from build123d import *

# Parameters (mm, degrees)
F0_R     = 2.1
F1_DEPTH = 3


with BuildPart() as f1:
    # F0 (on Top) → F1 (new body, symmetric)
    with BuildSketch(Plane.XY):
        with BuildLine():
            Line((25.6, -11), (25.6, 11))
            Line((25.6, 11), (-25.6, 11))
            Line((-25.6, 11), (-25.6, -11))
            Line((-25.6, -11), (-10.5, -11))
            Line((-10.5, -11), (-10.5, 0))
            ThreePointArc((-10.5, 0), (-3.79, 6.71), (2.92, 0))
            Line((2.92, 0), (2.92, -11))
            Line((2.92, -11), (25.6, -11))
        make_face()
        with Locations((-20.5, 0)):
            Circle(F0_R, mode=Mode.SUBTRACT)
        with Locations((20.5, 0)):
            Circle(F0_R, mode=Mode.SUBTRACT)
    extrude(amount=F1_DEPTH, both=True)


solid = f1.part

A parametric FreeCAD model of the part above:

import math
import FreeCAD as App
import Part
import Sketcher
Q = App.Units.Quantity

doc = App.newDocument("Part")
body = doc.addObject("PartDesign::Body", "Body")

# Sketch on XY plane
sketch1 = body.newObject("Sketcher::SketchObject", "Sketch")
sketch1.AttachmentSupport = (doc.getObject("XY_Plane"), [""])
sketch1.MapMode = "FlatFace"
sketch1.addGeometry(Part.LineSegment(App.Vector(25.6, -11, 0), App.Vector(25.6, 11, 0)), False)
sketch1.addGeometry(Part.LineSegment(App.Vector(25.6, 11, 0), App.Vector(-25.6, 11, 0)), False)
sketch1.addGeometry(Part.LineSegment(App.Vector(-25.6, 11, 0), App.Vector(-25.6, -11, 0)), False)
sketch1.addGeometry(Part.LineSegment(App.Vector(-25.6, -11, 0), App.Vector(-10.5, -11, 0)), False)
sketch1.addGeometry(Part.LineSegment(App.Vector(-10.5, -11, 0), App.Vector(-10.5, 0, 0)), False)
sketch1.addGeometry(Part.ArcOfCircle(Part.Circle(App.Vector(-3.8, 0, 0), App.Vector(0, 0, 1), 6.7), math.radians(0), math.radians(180)), False)
sketch1.addGeometry(Part.LineSegment(App.Vector(2.9, 0, 0), App.Vector(2.9, -11, 0)), False)
sketch1.addGeometry(Part.LineSegment(App.Vector(2.9, -11, 0), App.Vector(25.6, -11, 0)), False)
sketch1.addGeometry(Part.Circle(App.Vector(-20.5, 0, 0), App.Vector(0, 0, 1), 2.1), False)
sketch1.addGeometry(Part.Circle(App.Vector(20.5, 0, 0), App.Vector(0, 0, 1), 2.1), False)
sketch1.addConstraint(Sketcher.Constraint("Coincident", 0, 2, 1, 1))
sketch1.addConstraint(Sketcher.Constraint("Coincident", 1, 2, 2, 1))
sketch1.addConstraint(Sketcher.Constraint("Coincident", 2, 2, 3, 1))
sketch1.addConstraint(Sketcher.Constraint("Coincident", 3, 2, 4, 1))
sketch1.addConstraint(Sketcher.Constraint("Tangent", 4, 2, 5, 2))
sketch1.addConstraint(Sketcher.Constraint("Tangent", 5, 1, 6, 1))
sketch1.addConstraint(Sketcher.Constraint("Coincident", 6, 2, 7, 1))
sketch1.addConstraint(Sketcher.Constraint("Coincident", 7, 2, 0, 1))
sketch1.addConstraint(Sketcher.Constraint("Vertical", 0))
sketch1.addConstraint(Sketcher.Constraint("Horizontal", 1))
sketch1.addConstraint(Sketcher.Constraint("Vertical", 2))
sketch1.addConstraint(Sketcher.Constraint("Horizontal", 3))
sketch1.addConstraint(Sketcher.Constraint("Vertical", 4))
sketch1.addConstraint(Sketcher.Constraint("Vertical", 6))
sketch1.addConstraint(Sketcher.Constraint("Horizontal", 7))
sketch1.addConstraint(Sketcher.Constraint("Equal", 8, 9))
sketch1.addConstraint(Sketcher.Constraint("Symmetric", 8, 3, 9, 3, -1, 1))
sketch1.addConstraint(Sketcher.Constraint("Symmetric", 0, 2, 2, 2, -1, 1))
sketch1.addConstraint(Sketcher.Constraint("PointOnObject", 5, 3, -1))
sketch1.addConstraint(Sketcher.Constraint("PointOnObject", 8, 3, -1))
sketch1.addConstraint(Sketcher.Constraint("Horizontal", 3, 2, 6, 2))
sketch1.addConstraint(Sketcher.Constraint("Diameter", 8, Q("4.2 mm")))
sketch1.addConstraint(Sketcher.Constraint("DistanceY", 0, 1, 0, 2, Q("22 mm")))
sketch1.addConstraint(Sketcher.Constraint("Radius", 5, Q("6.71 mm")))
sketch1.addConstraint(Sketcher.Constraint("DistanceX", 1, 2, 1, 1, Q("51.2 mm")))
sketch1.addConstraint(Sketcher.Constraint("DistanceX", 3, 1, 3, 2, Q("15.1 mm")))
sketch1.addConstraint(Sketcher.Constraint("DistanceX", 8, 3, 9, 3, Q("41 mm")))
pad1 = body.newObject("PartDesign::Pad", "Pad")
pad1.Profile = sketch1
pad1.Length = 6
pad1.Midplane = True

doc.recompute()
